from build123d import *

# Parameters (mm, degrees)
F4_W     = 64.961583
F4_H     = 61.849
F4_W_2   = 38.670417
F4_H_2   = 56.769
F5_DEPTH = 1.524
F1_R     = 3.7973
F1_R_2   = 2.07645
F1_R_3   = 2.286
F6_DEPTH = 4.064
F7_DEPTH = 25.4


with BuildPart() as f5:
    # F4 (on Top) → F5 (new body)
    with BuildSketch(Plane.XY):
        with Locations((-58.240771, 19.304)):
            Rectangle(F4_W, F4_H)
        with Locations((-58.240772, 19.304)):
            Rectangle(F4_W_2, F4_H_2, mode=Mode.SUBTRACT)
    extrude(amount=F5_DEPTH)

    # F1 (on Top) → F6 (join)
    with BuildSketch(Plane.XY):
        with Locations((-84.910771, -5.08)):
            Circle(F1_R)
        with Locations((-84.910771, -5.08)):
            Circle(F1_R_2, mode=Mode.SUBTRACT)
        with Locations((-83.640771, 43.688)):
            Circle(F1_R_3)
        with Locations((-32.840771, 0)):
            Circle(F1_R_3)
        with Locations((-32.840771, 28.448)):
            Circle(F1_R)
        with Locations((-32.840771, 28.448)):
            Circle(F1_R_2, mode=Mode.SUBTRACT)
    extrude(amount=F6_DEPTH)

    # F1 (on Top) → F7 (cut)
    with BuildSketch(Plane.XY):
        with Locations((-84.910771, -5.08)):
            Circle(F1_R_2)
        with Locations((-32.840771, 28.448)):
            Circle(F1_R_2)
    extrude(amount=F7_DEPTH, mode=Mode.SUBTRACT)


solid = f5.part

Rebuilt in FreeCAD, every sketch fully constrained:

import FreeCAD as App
import Part
import Sketcher

V = App.Vector
Q = App.Units.Quantity


def add_polygon(sketch, points):
    """Adds a closed chain of lines whose ends are joined by coincident constraints."""
    first, n = sketch.GeometryCount, len(points)
    for a, b in zip(points, points[1:] + points[:1]):
        sketch.addGeometry(Part.LineSegment(App.Vector(*a, 0), App.Vector(*b, 0)), False)
    for i in range(n):
        sketch.addConstraint(Sketcher.Constraint("Coincident", first + i, 2, first + (i + 1) % n, 1))

doc = App.newDocument("Part")
body = doc.addObject("PartDesign::Body", "Body")

sketch1 = body.newObject("Sketcher::SketchObject", "Sketch")
sketch1.AttachmentSupport = (doc.getObject("XY_Plane"), [""])
sketch1.MapMode = "FlatFace"
add_polygon(sketch1, [(-91, 50), (-91, -12), (-26, -12), (-26, 50)])
add_polygon(sketch1, [(-39, -9), (-78, -9), (-78, 48), (-39, 48)])
sketch1.addConstraint([
    Sketcher.Constraint("Vertical", 0),
    Sketcher.Constraint("Horizontal", 1),
    Sketcher.Constraint("Vertical", 2),
    Sketcher.Constraint("Horizontal", 3),
    Sketcher.Constraint("Horizontal", 4),
    Sketcher.Constraint("Vertical", 5),
    Sketcher.Constraint("Horizontal", 6),
    Sketcher.Constraint("Vertical", 7),
    Sketcher.Constraint("DistanceY", 0, 2, 4, 2, Q("0.1 in")),
    Sketcher.Constraint("DistanceY", 5, 2, 3, 2, Q("0.1 in")),
    Sketcher.Constraint("DistanceY", 0, 2, 0, 1, Q("2.435 in")),
    Sketcher.Constraint("DistanceX", 4, 2, 1, 2, Q("2.04 in")),
    Sketcher.Constraint("DistanceX", 3, 2, 6, 2, Q("2.04 in")),
    Sketcher.Constraint("DistanceY", 0, 2, -1, 1, Q("0.4575 in")),
    Sketcher.Constraint("DistanceX", 1, 1, 1, 2, 64.961583),
    Sketcher.Constraint("DistanceX", 1, 2, -1, 1, 25.75998),
])
pad1 = body.newObject("PartDesign::Pad", "Pad")
pad1.Profile = sketch1
pad1.Length = Q("0.06 in")

sketch2 = body.newObject("Sketcher::SketchObject", "Sketch001")
sketch2.AttachmentSupport = (doc.getObject("XY_Plane"), [""])
sketch2.MapMode = "FlatFace"
sketch2.addGeometry([
    Part.Circle(V(-84.9, -5.1, 0), V(0, 0, 1), 3.8),
    Part.Circle(V(-84.9, -5.1, 0), V(0, 0, 1), 2.1),
    Part.Circle(V(-83.6, 43.7, 0), V(0, 0, 1), 2.3),
    Part.Circle(V(-32.8, 0, 0), V(0, 0, 1), 2.3),
    Part.Circle(V(-32.8, 28.4, 0), V(0, 0, 1), 3.8),
    Part.Circle(V(-32.8, 28.4, 0), V(0, 0, 1), 2.1),
], False)
sketch2.addConstraint([
    Sketcher.Constraint("Coincident", 1, 3, 0, 3),
    Sketcher.Constraint("Coincident", 5, 3, 4, 3),
    Sketcher.Constraint("Equal", 2, 3),
    Sketcher.Constraint("Equal", 0, 4),
    Sketcher.Constraint("Equal", 1, 5),
    Sketcher.Constraint("PointOnObject", 3, 3, -1),
    Sketcher.Constraint("Vertical", 3, 3, 4, 3),
    Sketcher.Constraint("Diameter", 2, Q("0.18 in")),
    Sketcher.Constraint("Diameter", 0, Q("0.299 in")),
    Sketcher.Constraint("DistanceX", 2, 3, 3, 3, Q("2 in")),
    Sketcher.Constraint("Diameter", 1, Q("0.1635 in")),
    Sketcher.Constraint("DistanceY", 0, 3, -1, 1, Q("0.2 in")),
    Sketcher.Constraint("DistanceY", 4, 3, 2, 3, Q("0.6 in")),
    Sketcher.Constraint("DistanceY", -1, 1, 2, 3, Q("1.72 in")),
    Sketcher.Constraint("DistanceX", 0, 3, 2, 3, Q("0.05 in")),
    Sketcher.Constraint("DistanceX", 0, 3, -1, 1, 84.910771),
])
pad2 = body.newObject("PartDesign::Pad", "Pad001")
pad2.Profile = sketch2
pad2.Length = Q("0.16 in")

sketch3 = body.newObject("Sketcher::SketchObject", "Sketch002")
sketch3.AttachmentSupport = (doc.getObject("XY_Plane"), [""])
sketch3.MapMode = "FlatFace"
sketch3.addGeometry([
    Part.Circle(V(-84.9, -5.1, 0), V(0, 0, 1), 2.1),
    Part.Circle(V(-32.8, 28.4, 0), V(0, 0, 1), 2.1),
], False)
sketch3.addConstraint([
    Sketcher.Constraint("Equal", 0, 1),
    Sketcher.Constraint("Diameter", 0, Q("0.1635 in")),
    Sketcher.Constraint("DistanceY", 0, 3, -1, 1, Q("0.2 in")),
    Sketcher.Constraint("DistanceY", -1, 1, 1, 3, Q("1.12 in")),
    Sketcher.Constraint("DistanceX", 0, 3, 1, 3, Q("2.05 in")),
    Sketcher.Constraint("DistanceX", 0, 3, -1, 1, 84.910771),
])
pocket1 = body.newObject("PartDesign::Pocket", "Pocket")
pocket1.Profile = sketch3
pocket1.Length = Q("1 in")
pocket1.Reversed = True

doc.recompute()
